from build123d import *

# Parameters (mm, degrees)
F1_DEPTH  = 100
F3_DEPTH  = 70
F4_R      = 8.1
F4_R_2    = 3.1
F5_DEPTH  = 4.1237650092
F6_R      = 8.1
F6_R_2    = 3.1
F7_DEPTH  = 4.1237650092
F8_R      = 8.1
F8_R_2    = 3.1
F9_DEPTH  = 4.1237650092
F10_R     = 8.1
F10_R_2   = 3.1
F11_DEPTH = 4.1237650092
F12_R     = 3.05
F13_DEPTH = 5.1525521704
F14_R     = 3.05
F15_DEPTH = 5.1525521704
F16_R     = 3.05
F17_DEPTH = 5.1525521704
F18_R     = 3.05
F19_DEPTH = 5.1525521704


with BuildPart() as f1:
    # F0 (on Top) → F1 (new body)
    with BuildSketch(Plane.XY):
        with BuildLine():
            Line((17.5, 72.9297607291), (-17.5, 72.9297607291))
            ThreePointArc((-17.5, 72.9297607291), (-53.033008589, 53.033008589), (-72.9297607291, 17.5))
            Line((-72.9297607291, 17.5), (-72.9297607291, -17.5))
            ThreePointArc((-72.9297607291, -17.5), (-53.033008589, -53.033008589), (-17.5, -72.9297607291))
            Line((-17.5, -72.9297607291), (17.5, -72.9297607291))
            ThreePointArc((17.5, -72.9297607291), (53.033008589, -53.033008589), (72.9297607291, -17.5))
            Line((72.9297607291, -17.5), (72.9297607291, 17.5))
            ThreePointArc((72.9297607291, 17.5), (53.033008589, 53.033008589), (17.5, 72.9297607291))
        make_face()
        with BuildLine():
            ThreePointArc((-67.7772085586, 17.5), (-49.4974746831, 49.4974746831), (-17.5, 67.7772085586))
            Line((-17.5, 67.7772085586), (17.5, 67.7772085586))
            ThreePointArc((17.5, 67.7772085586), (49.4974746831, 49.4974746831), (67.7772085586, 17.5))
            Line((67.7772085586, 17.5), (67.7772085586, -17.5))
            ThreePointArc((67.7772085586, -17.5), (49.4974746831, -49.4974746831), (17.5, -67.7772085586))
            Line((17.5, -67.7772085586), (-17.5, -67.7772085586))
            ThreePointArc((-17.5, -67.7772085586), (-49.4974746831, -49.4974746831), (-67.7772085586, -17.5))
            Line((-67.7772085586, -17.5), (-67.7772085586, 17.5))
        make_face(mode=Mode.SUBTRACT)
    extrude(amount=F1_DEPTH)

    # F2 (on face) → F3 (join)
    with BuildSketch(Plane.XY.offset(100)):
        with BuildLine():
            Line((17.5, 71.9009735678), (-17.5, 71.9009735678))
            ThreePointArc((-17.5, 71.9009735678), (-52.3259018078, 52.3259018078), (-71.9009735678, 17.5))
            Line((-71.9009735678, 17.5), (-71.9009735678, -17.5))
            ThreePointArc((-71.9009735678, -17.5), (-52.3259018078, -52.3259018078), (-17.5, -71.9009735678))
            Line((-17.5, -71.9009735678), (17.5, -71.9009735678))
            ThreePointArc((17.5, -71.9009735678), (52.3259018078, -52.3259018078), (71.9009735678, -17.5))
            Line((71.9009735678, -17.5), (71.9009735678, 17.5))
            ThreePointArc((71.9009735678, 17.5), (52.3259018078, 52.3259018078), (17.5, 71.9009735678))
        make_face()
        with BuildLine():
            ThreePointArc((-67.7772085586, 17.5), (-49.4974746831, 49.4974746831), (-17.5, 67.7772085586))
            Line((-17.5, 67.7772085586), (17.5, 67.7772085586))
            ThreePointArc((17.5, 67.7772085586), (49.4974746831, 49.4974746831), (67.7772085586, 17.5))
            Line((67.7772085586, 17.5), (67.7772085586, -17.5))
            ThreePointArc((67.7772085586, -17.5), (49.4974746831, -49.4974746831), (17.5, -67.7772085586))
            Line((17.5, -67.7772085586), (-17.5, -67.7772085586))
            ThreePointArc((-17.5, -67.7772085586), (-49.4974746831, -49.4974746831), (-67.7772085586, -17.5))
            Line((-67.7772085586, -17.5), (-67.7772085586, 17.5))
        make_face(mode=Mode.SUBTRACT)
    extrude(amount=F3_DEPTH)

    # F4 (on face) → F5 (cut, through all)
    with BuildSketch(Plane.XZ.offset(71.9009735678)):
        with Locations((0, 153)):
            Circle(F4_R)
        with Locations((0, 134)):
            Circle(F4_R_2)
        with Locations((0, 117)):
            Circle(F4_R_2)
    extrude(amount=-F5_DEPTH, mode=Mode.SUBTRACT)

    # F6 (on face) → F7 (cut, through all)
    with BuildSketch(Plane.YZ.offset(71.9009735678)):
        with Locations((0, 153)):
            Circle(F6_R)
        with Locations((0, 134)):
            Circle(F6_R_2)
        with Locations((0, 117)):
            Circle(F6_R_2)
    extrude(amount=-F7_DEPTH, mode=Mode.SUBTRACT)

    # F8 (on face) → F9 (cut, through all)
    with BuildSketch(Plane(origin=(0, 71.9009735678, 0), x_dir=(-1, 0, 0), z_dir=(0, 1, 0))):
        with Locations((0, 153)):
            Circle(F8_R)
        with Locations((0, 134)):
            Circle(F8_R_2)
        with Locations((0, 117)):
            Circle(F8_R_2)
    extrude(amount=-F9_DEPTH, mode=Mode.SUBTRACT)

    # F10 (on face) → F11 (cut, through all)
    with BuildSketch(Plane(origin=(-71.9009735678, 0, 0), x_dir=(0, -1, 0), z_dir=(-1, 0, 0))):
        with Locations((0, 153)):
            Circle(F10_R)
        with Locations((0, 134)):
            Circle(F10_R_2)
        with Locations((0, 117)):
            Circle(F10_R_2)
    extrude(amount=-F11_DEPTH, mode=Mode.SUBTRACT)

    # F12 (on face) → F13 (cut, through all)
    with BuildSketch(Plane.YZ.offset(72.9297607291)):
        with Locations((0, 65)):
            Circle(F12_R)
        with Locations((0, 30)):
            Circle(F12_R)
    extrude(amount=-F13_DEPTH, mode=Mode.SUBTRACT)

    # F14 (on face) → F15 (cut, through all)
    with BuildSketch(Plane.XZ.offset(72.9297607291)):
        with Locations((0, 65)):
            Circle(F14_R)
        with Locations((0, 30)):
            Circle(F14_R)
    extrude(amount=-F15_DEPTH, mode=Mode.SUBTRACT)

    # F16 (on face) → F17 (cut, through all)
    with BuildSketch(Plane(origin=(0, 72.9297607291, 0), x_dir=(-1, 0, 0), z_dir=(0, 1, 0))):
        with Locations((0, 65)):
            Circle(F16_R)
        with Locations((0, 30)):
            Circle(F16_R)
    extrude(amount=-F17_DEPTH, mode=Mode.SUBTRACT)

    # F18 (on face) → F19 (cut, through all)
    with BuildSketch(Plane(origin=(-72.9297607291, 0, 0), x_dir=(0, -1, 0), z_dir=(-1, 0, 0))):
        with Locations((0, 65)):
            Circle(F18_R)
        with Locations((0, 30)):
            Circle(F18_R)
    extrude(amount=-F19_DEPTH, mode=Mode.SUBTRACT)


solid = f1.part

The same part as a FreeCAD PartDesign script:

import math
import FreeCAD as App
import Part
import Sketcher

doc = App.newDocument("Part")
body = doc.addObject("PartDesign::Body", "Body")

# Sketch on XY plane
sketch1 = body.newObject("Sketcher::SketchObject", "Sketch")
sketch1.AttachmentSupport = (doc.getObject("XY_Plane"), [""])
sketch1.MapMode = "FlatFace"
sketch1.addGeometry(Part.LineSegment(App.Vector(18, 73, 0), App.Vector(-18, 73, 0)), False)
sketch1.addGeometry(Part.ArcOfCircle(Part.Circle(App.Vector(0, 0, 0), App.Vector(0, 0, 1), 75), math.radians(103), math.radians(167)), False)
sketch1.addGeometry(Part.LineSegment(App.Vector(-73, 18, 0), App.Vector(-73, -18, 0)), False)
sketch1.addGeometry(Part.ArcOfCircle(Part.Circle(App.Vector(0, 0, 0), App.Vector(0, 0, 1), 75), math.radians(-167), math.radians(-103)), False)
sketch1.addGeometry(Part.LineSegment(App.Vector(-18, -73, 0), App.Vector(18, -73, 0)), False)
sketch1.addGeometry(Part.ArcOfCircle(Part.Circle(App.Vector(0, 0, 0), App.Vector(0, 0, 1), 75), math.radians(-77), math.radians(-13)), False)
sketch1.addGeometry(Part.LineSegment(App.Vector(73, -18, 0), App.Vector(73, 18, 0)), False)
sketch1.addGeometry(Part.ArcOfCircle(Part.Circle(App.Vector(0, 0, 0), App.Vector(0, 0, 1), 75), math.radians(13), math.radians(77)), False)
sketch1.addGeometry(Part.LineSegment(App.Vector(-68, -18, 0), App.Vector(-68, 18, 0)), False)
sketch1.addGeometry(Part.ArcOfCircle(Part.Circle(App.Vector(0, 0, 0), App.Vector(0, 0, 1), 70), math.radians(104), math.radians(166)), False)
sketch1.addGeometry(Part.LineSegment(App.Vector(-18, 68, 0), App.Vector(18, 68, 0)), False)
sketch1.addGeometry(Part.ArcOfCircle(Part.Circle(App.Vector(0, 0, 0), App.Vector(0, 0, 1), 70), math.radians(14), math.radians(76)), False)
sketch1.addGeometry(Part.LineSegment(App.Vector(68, 18, 0), App.Vector(68, -18, 0)), False)
sketch1.addGeometry(Part.ArcOfCircle(Part.Circle(App.Vector(0, 0, 0), App.Vector(0, 0, 1), 70), math.radians(-76), math.radians(-14)), False)
sketch1.addGeometry(Part.LineSegment(App.Vector(18, -68, 0), App.Vector(-18, -68, 0)), False)
sketch1.addGeometry(Part.ArcOfCircle(Part.Circle(App.Vector(0, 0, 0), App.Vector(0, 0, 1), 70), math.radians(-166), math.radians(-104)), False)
sketch1.addConstraint(Sketcher.Constraint("Coincident", 0, 2, 1, 1))
sketch1.addConstraint(Sketcher.Constraint("Coincident", 1, 2, 2, 1))
sketch1.addConstraint(Sketcher.Constraint("Coincident", 2, 2, 3, 1))
sketch1.addConstraint(Sketcher.Constraint("Coincident", 3, 2, 4, 1))
sketch1.addConstraint(Sketcher.Constraint("Coincident", 4, 2, 5, 1))
sketch1.addConstraint(Sketcher.Constraint("Coincident", 5, 2, 6, 1))
sketch1.addConstraint(Sketcher.Constraint("Coincident", 6, 2, 7, 1))
sketch1.addConstraint(Sketcher.Constraint("Coincident", 7, 2, 0, 1))
sketch1.addConstraint(Sketcher.Constraint("Coincident", 8, 2, 9, 2))
sketch1.addConstraint(Sketcher.Constraint("Coincident", 9, 1, 10, 1))
sketch1.addConstraint(Sketcher.Constraint("Coincident", 10, 2, 11, 2))
sketch1.addConstraint(Sketcher.Constraint("Coincident", 11, 1, 12, 1))
sketch1.addConstraint(Sketcher.Constraint("Coincident", 12, 2, 13, 2))
sketch1.addConstraint(Sketcher.Constraint("Coincident", 13, 1, 14, 1))
sketch1.addConstraint(Sketcher.Constraint("Coincident", 14, 2, 15, 2))
sketch1.addConstraint(Sketcher.Constraint("Coincident", 15, 1, 8, 1))
sketch1.addConstraint(Sketcher.Constraint("Horizontal", 0))
sketch1.addConstraint(Sketcher.Constraint("Vertical", 2))
sketch1.addConstraint(Sketcher.Constraint("Horizontal", 4))
sketch1.addConstraint(Sketcher.Constraint("Vertical", 6))
sketch1.addConstraint(Sketcher.Constraint("Vertical", 8))
sketch1.addConstraint(Sketcher.Constraint("Horizontal", 10))
sketch1.addConstraint(Sketcher.Constraint("Vertical", 12))
sketch1.addConstraint(Sketcher.Constraint("Horizontal", 14))
sketch1.addConstraint(Sketcher.Constraint("Coincident", 1, 3, -1, 1))
sketch1.addConstraint(Sketcher.Constraint("Coincident", 3, 3, -1, 1))
sketch1.addConstraint(Sketcher.Constraint("Coincident", 5, 3, -1, 1))
sketch1.addConstraint(Sketcher.Constraint("Coincident", 7, 3, -1, 1))
sketch1.addConstraint(Sketcher.Constraint("Coincident", 9, 3, -1, 1))
sketch1.addConstraint(Sketcher.Constraint("Coincident", 11, 3, -1, 1))
sketch1.addConstraint(Sketcher.Constraint("Coincident", 13, 3, -1, 1))
sketch1.addConstraint(Sketcher.Constraint("Coincident", 15, 3, -1, 1))
sketch1.addConstraint(Sketcher.Constraint("Equal", 1, 3))
sketch1.addConstraint(Sketcher.Constraint("Equal", 3, 5))
sketch1.addConstraint(Sketcher.Constraint("Equal", 5, 7))
sketch1.addConstraint(Sketcher.Constraint("Equal", 9, 11))
sketch1.addConstraint(Sketcher.Constraint("Equal", 11, 13))
sketch1.addConstraint(Sketcher.Constraint("Equal", 13, 15))
sketch1.addConstraint(Sketcher.Constraint("Horizontal", 2, 2, 5, 2))
sketch1.addConstraint(Sketcher.Constraint("Horizontal", 6, 2, 8, 2))
sketch1.addConstraint(Sketcher.Constraint("Horizontal", 8, 2, 11, 1))
sketch1.addConstraint(Sketcher.Constraint("Vertical", 0, 2, 3, 2))
sketch1.addConstraint(Sketcher.Constraint("Vertical", 3, 2, 9, 1))
sketch1.addConstraint(Sketcher.Constraint("Vertical", 10, 2, 13, 1))
sketch1.addConstraint(Sketcher.Constraint("Equal", 14, 2))
sketch1.addConstraint(Sketcher.Constraint("Radius", 1, 75.0))
sketch1.addConstraint(Sketcher.Constraint("Radius", 9, 70.0))
sketch1.addConstraint(Sketcher.Constraint("DistanceX", 0, 2, 0, 1, 35.0))
pad1 = body.newObject("PartDesign::Pad", "Pad")
pad1.Profile = sketch1
pad1.Length = 100

# Sketch on XY plane
sketch2 = body.newObject("Sketcher::SketchObject", "Sketch001")
sketch2.AttachmentSupport = (doc.getObject("XY_Plane"), [""])
sketch2.MapMode = "FlatFace"
sketch2.AttachmentOffset = App.Placement(App.Vector(0, 0, 100), App.Rotation())
sketch2.addGeometry(Part.LineSegment(App.Vector(18, 72, 0), App.Vector(-18, 72, 0)), False)
sketch2.addGeometry(Part.ArcOfCircle(Part.Circle(App.Vector(0, 0, 0), App.Vector(0, 0, 1), 74), math.radians(104), math.radians(166)), False)
sketch2.addGeometry(Part.LineSegment(App.Vector(-72, 18, 0), App.Vector(-72, -18, 0)), False)
sketch2.addGeometry(Part.ArcOfCircle(Part.Circle(App.Vector(0, 0, 0), App.Vector(0, 0, 1), 74), math.radians(-166), math.radians(-104)), False)
sketch2.addGeometry(Part.LineSegment(App.Vector(-18, -72, 0), App.Vector(18, -72, 0)), False)
sketch2.addGeometry(Part.ArcOfCircle(Part.Circle(App.Vector(0, 0, 0), App.Vector(0, 0, 1), 74), math.radians(-76), math.radians(-14)), False)
sketch2.addGeometry(Part.LineSegment(App.Vector(72, -18, 0), App.Vector(72, 18, 0)), False)
sketch2.addGeometry(Part.ArcOfCircle(Part.Circle(App.Vector(0, 0, 0), App.Vector(0, 0, 1), 74), math.radians(14), math.radians(76)), False)
sketch2.addGeometry(Part.LineSegment(App.Vector(-68, -18, 0), App.Vector(-68, 18, 0)), False)
sketch2.addGeometry(Part.ArcOfCircle(Part.Circle(App.Vector(0, 0, 0), App.Vector(0, 0, 1), 70), math.radians(104), math.radians(166)), False)
sketch2.addGeometry(Part.LineSegment(App.Vector(-18, 68, 0), App.Vector(18, 68, 0)), False)
sketch2.addGeometry(Part.ArcOfCircle(Part.Circle(App.Vector(0, 0, 0), App.Vector(0, 0, 1), 70), math.radians(14), math.radians(76)), False)
sketch2.addGeometry(Part.LineSegment(App.Vector(68, 18, 0), App.Vector(68, -18, 0)), False)
sketch2.addGeometry(Part.ArcOfCircle(Part.Circle(App.Vector(0, 0, 0), App.Vector(0, 0, 1), 70), math.radians(-76), math.radians(-14)), False)
sketch2.addGeometry(Part.LineSegment(App.Vector(18, -68, 0), App.Vector(-18, -68, 0)), False)
sketch2.addGeometry(Part.ArcOfCircle(Part.Circle(App.Vector(0, 0, 0), App.Vector(0, 0, 1), 70), math.radians(-166), math.radians(-104)), False)
sketch2.addConstraint(Sketcher.Constraint("Coincident", 0, 2, 1, 1))
sketch2.addConstraint(Sketcher.Constraint("Coincident", 1, 2, 2, 1))
sketch2.addConstraint(Sketcher.Constraint("Coincident", 2, 2, 3, 1))
sketch2.addConstraint(Sketcher.Constraint("Coincident", 3, 2, 4, 1))
sketch2.addConstraint(Sketcher.Constraint("Coincident", 4, 2, 5, 1))
sketch2.addConstraint(Sketcher.Constraint("Coincident", 5, 2, 6, 1))
sketch2.addConstraint(Sketcher.Constraint("Coincident", 6, 2, 7, 1))
sketch2.addConstraint(Sketcher.Constraint("Coincident", 7, 2, 0, 1))
sketch2.addConstraint(Sketcher.Constraint("Coincident", 8, 2, 9, 2))
sketch2.addConstraint(Sketcher.Constraint("Coincident", 9, 1, 10, 1))
sketch2.addConstraint(Sketcher.Constraint("Coincident", 10, 2, 11, 2))
sketch2.addConstraint(Sketcher.Constraint("Coincident", 11, 1, 12, 1))
sketch2.addConstraint(Sketcher.Constraint("Coincident", 12, 2, 13, 2))
sketch2.addConstraint(Sketcher.Constraint("Coincident", 13, 1, 14, 1))
sketch2.addConstraint(Sketcher.Constraint("Coincident", 14, 2, 15, 2))
sketch2.addConstraint(Sketcher.Constraint("Coincident", 15, 1, 8, 1))
sketch2.addConstraint(Sketcher.Constraint("Horizontal", 0))
sketch2.addConstraint(Sketcher.Constraint("Vertical", 2))
sketch2.addConstraint(Sketcher.Constraint("Horizontal", 4))
sketch2.addConstraint(Sketcher.Constraint("Vertical", 6))
sketch2.addConstraint(Sketcher.Constraint("Vertical", 8))
sketch2.addConstraint(Sketcher.Constraint("Horizontal", 10))
sketch2.addConstraint(Sketcher.Constraint("Vertical", 12))
sketch2.addConstraint(Sketcher.Constraint("Horizontal", 14))
sketch2.addConstraint(Sketcher.Constraint("Coincident", 1, 3, -1, 1))
sketch2.addConstraint(Sketcher.Constraint("Coincident", 3, 3, -1, 1))
sketch2.addConstraint(Sketcher.Constraint("Coincident", 5, 3, -1, 1))
sketch2.addConstraint(Sketcher.Constraint("Coincident", 7, 3, -1, 1))
sketch2.addConstraint(Sketcher.Constraint("Coincident", 9, 3, -1, 1))
sketch2.addConstraint(Sketcher.Constraint("Coincident", 11, 3, -1, 1))
sketch2.addConstraint(Sketcher.Constraint("Coincident", 13, 3, -1, 1))
sketch2.addConstraint(Sketcher.Constraint("Coincident", 15, 3, -1, 1))
sketch2.addConstraint(Sketcher.Constraint("Equal", 1, 3))
sketch2.addConstraint(Sketcher.Constraint("Equal", 3, 5))
sketch2.addConstraint(Sketcher.Constraint("Equal", 5, 7))
sketch2.addConstraint(Sketcher.Constraint("Equal", 9, 11))
sketch2.addConstraint(Sketcher.Constraint("Equal", 11, 13))
sketch2.addConstraint(Sketcher.Constraint("Equal", 13, 15))
sketch2.addConstraint(Sketcher.Constraint("Horizontal", 2, 2, 5, 2))
sketch2.addConstraint(Sketcher.Constraint("Horizontal", 6, 2, 8, 2))
sketch2.addConstraint(Sketcher.Constraint("Horizontal", 8, 2, 11, 1))
sketch2.addConstraint(Sketcher.Constraint("Vertical", 0, 2, 3, 2))
sketch2.addConstraint(Sketcher.Constraint("Vertical", 3, 2, 9, 1))
sketch2.addConstraint(Sketcher.Constraint("Vertical", 10, 2, 13, 1))
sketch2.addConstraint(Sketcher.Constraint("Equal", 14, 2))
sketch2.addConstraint(Sketcher.Constraint("Radius", 1, 74.0))
sketch2.addConstraint(Sketcher.Constraint("Radius", 9, 70.0))
sketch2.addConstraint(Sketcher.Constraint("DistanceX", 0, 2, 0, 1, 35.0))
pad2 = body.newObject("PartDesign::Pad", "Pad001")
pad2.Profile = sketch2
pad2.Length = 70

# Sketch on XZ plane
sketch3 = body.newObject("Sketcher::SketchObject", "Sketch002")
sketch3.AttachmentSupport = (doc.getObject("XZ_Plane"), [""])
sketch3.MapMode = "FlatFace"
sketch3.AttachmentOffset = App.Placement(App.Vector(0, 0, 71.900974), App.Rotation())
sketch3.addGeometry(Part.Circle(App.Vector(0, 153, 0), App.Vector(0, 0, 1), 8.1), False)
sketch3.addGeometry(Part.Circle(App.Vector(0, 134, 0), App.Vector(0, 0, 1), 3.1), False)
sketch3.addGeometry(Part.Circle(App.Vector(0, 117, 0), App.Vector(0, 0, 1), 3.1), False)
sketch3.addConstraint(Sketcher.Constraint("Equal", 1, 2))
sketch3.addConstraint(Sketcher.Constraint("PointOnObject", 0, 3, -2))
sketch3.addConstraint(Sketcher.Constraint("PointOnObject", 1, 3, -2))
sketch3.addConstraint(Sketcher.Constraint("PointOnObject", 2, 3, -2))
sketch3.addConstraint(Sketcher.Constraint("Diameter", 0, 16.2))
sketch3.addConstraint(Sketcher.Constraint("Diameter", 1, 6.2))
sketch3.addConstraint(Sketcher.Constraint("DistanceY", -1, 1, 0, 3, 153.0))
sketch3.addConstraint(Sketcher.Constraint("DistanceY", -1, 1, 1, 3, 134.0))
sketch3.addConstraint(Sketcher.Constraint("DistanceY", -1, 1, 2, 3, 117.0))
pocket1 = body.newObject("PartDesign::Pocket", "Pocket")
pocket1.Profile = sketch3
pocket1.Length = 4.123765

# Sketch on YZ plane
sketch4 = body.newObject("Sketcher::SketchObject", "Sketch003")
sketch4.AttachmentSupport = (doc.getObject("YZ_Plane"), [""])
sketch4.MapMode = "FlatFace"
sketch4.AttachmentOffset = App.Placement(App.Vector(0, 0, 71.900974), App.Rotation())
sketch4.addGeometry(Part.Circle(App.Vector(0, 153, 0), App.Vector(0, 0, 1), 8.1), False)
sketch4.addGeometry(Part.Circle(App.Vector(0, 134, 0), App.Vector(0, 0, 1), 3.1), False)
sketch4.addGeometry(Part.Circle(App.Vector(0, 117, 0), App.Vector(0, 0, 1), 3.1), False)
sketch4.addConstraint(Sketcher.Constraint("Equal", 1, 2))
sketch4.addConstraint(Sketcher.Constraint("PointOnObject", 0, 3, -2))
sketch4.addConstraint(Sketcher.Constraint("PointOnObject", 1, 3, -2))
sketch4.addConstraint(Sketcher.Constraint("PointOnObject", 2, 3, -2))
sketch4.addConstraint(Sketcher.Constraint("Diameter", 0, 16.2))
sketch4.addConstraint(Sketcher.Constraint("Diameter", 1, 6.2))
sketch4.addConstraint(Sketcher.Constraint("DistanceY", -1, 1, 0, 3, 153.0))
sketch4.addConstraint(Sketcher.Constraint("DistanceY", -1, 1, 1, 3, 134.0))
sketch4.addConstraint(Sketcher.Constraint("DistanceY", -1, 1, 2, 3, 117.0))
pocket2 = body.newObject("PartDesign::Pocket", "Pocket001")
pocket2.Profile = sketch4
pocket2.Length = 4.123765

# Sketch on XZ plane
sketch5 = body.newObject("Sketcher::SketchObject", "Sketch004")
sketch5.AttachmentSupport = (doc.getObject("XZ_Plane"), [""])
sketch5.MapMode = "FlatFace"
sketch5.AttachmentOffset = App.Placement(App.Vector(0, 0, -71.900974), App.Rotation())
sketch5.addGeometry(Part.Circle(App.Vector(0, 153, 0), App.Vector(0, 0, 1), 8.1), False)
sketch5.addGeometry(Part.Circle(App.Vector(0, 134, 0), App.Vector(0, 0, 1), 3.1), False)
sketch5.addGeometry(Part.Circle(App.Vector(0, 117, 0), App.Vector(0, 0, 1), 3.1), False)
sketch5.addConstraint(Sketcher.Constraint("Equal", 1, 2))
sketch5.addConstraint(Sketcher.Constraint("PointOnObject", 0, 3, -2))
sketch5.addConstraint(Sketcher.Constraint("PointOnObject", 1, 3, -2))
sketch5.addConstraint(Sketcher.Constraint("PointOnObject", 2, 3, -2))
sketch5.addConstraint(Sketcher.Constraint("Diameter", 0, 16.2))
sketch5.addConstraint(Sketcher.Constraint("Diameter", 1, 6.2))
sketch5.addConstraint(Sketcher.Constraint("DistanceY", -1, 1, 0, 3, 153.0))
sketch5.addConstraint(Sketcher.Constraint("DistanceY", -1, 1, 1, 3, 134.0))
sketch5.addConstraint(Sketcher.Constraint("DistanceY", -1, 1, 2, 3, 117.0))
pocket3 = body.newObject("PartDesign::Pocket", "Pocket002")
pocket3.Profile = sketch5
pocket3.Type = "ThroughAll"
pocket3.Reversed = True

# Sketch on YZ plane
sketch6 = body.newObject("Sketcher::SketchObject", "Sketch005")
sketch6.AttachmentSupport = (doc.getObject("YZ_Plane"), [""])
sketch6.MapMode = "FlatFace"
sketch6.AttachmentOffset = App.Placement(App.Vector(0, 0, -71.900974), App.Rotation())
sketch6.addGeometry(Part.Circle(App.Vector(0, 153, 0), App.Vector(0, 0, 1), 8.1), False)
sketch6.addGeometry(Part.Circle(App.Vector(0, 134, 0), App.Vector(0, 0, 1), 3.1), False)
sketch6.addGeometry(Part.Circle(App.Vector(0, 117, 0), App.Vector(0, 0, 1), 3.1), False)
sketch6.addConstraint(Sketcher.Constraint("Equal", 1, 2))
sketch6.addConstraint(Sketcher.Constraint("PointOnObject", 0, 3, -2))
sketch6.addConstraint(Sketcher.Constraint("PointOnObject", 1, 3, -2))
sketch6.addConstraint(Sketcher.Constraint("PointOnObject", 2, 3, -2))
sketch6.addConstraint(Sketcher.Constraint("Diameter", 0, 16.2))
sketch6.addConstraint(Sketcher.Constraint("Diameter", 1, 6.2))
sketch6.addConstraint(Sketcher.Constraint("DistanceY", -1, 1, 0, 3, 153.0))
sketch6.addConstraint(Sketcher.Constraint("DistanceY", -1, 1, 1, 3, 134.0))
sketch6.addConstraint(Sketcher.Constraint("DistanceY", -1, 1, 2, 3, 117.0))
pocket4 = body.newObject("PartDesign::Pocket", "Pocket003")
pocket4.Profile = sketch6
pocket4.Type = "ThroughAll"
pocket4.Reversed = True

# Sketch on YZ plane
sketch7 = body.newObject("Sketcher::SketchObject", "Sketch006")
sketch7.AttachmentSupport = (doc.getObject("YZ_Plane"), [""])
sketch7.MapMode = "FlatFace"
sketch7.AttachmentOffset = App.Placement(App.Vector(0, 0, 72.929761), App.Rotation())
sketch7.addGeometry(Part.Circle(App.Vector(0, 65, 0), App.Vector(0, 0, 1), 3), False)
sketch7.addGeometry(Part.Circle(App.Vector(0, 30, 0), App.Vector(0, 0, 1), 3), False)
sketch7.addConstraint(Sketcher.Constraint("Equal", 0, 1))
sketch7.addConstraint(Sketcher.Constraint("PointOnObject", 0, 3, -2))
sketch7.addConstraint(Sketcher.Constraint("PointOnObject", 1, 3, -2))
sketch7.addConstraint(Sketcher.Constraint("Diameter", 0, 6.1))
sketch7.addConstraint(Sketcher.Constraint("DistanceY", -1, 1, 0, 3, 65.0))
sketch7.addConstraint(Sketcher.Constraint("DistanceY", -1, 1, 1, 3, 30.0))
pocket5 = body.newObject("PartDesign::Pocket", "Pocket004")
pocket5.Profile = sketch7
pocket5.Length = 5.152552

# Sketch on XZ plane
sketch8 = body.newObject("Sketcher::SketchObject", "Sketch007")
sketch8.AttachmentSupport = (doc.getObject("XZ_Plane"), [""])
sketch8.MapMode = "FlatFace"
sketch8.AttachmentOffset = App.Placement(App.Vector(0, 0, 72.929761), App.Rotation())
sketch8.addGeometry(Part.Circle(App.Vector(0, 65, 0), App.Vector(0, 0, 1), 3), False)
sketch8.addGeometry(Part.Circle(App.Vector(0, 30, 0), App.Vector(0, 0, 1), 3), False)
sketch8.addConstraint(Sketcher.Constraint("Equal", 0, 1))
sketch8.addConstraint(Sketcher.Constraint("PointOnObject", 0, 3, -2))
sketch8.addConstraint(Sketcher.Constraint("PointOnObject", 1, 3, -2))
sketch8.addConstraint(Sketcher.Constraint("Diameter", 0, 6.1))
sketch8.addConstraint(Sketcher.Constraint("DistanceY", -1, 1, 0, 3, 65.0))
sketch8.addConstraint(Sketcher.Constraint("DistanceY", -1, 1, 1, 3, 30.0))
pocket6 = body.newObject("PartDesign::Pocket", "Pocket005")
pocket6.Profile = sketch8
pocket6.Length = 5.152552

# Sketch on XZ plane
sketch9 = body.newObject("Sketcher::SketchObject", "Sketch008")
sketch9.AttachmentSupport = (doc.getObject("XZ_Plane"), [""])
sketch9.MapMode = "FlatFace"
sketch9.AttachmentOffset = App.Placement(App.Vector(0, 0, -72.929761), App.Rotation())
sketch9.addGeometry(Part.Circle(App.Vector(0, 65, 0), App.Vector(0, 0, 1), 3), False)
sketch9.addGeometry(Part.Circle(App.Vector(0, 30, 0), App.Vector(0, 0, 1), 3), False)
sketch9.addConstraint(Sketcher.Constraint("Equal", 0, 1))
sketch9.addConstraint(Sketcher.Constraint("PointOnObject", 0, 3, -2))
sketch9.addConstraint(Sketcher.Constraint("PointOnObject", 1, 3, -2))
sketch9.addConstraint(Sketcher.Constraint("Diameter", 0, 6.1))
sketch9.addConstraint(Sketcher.Constraint("DistanceY", -1, 1, 0, 3, 65.0))
sketch9.addConstraint(Sketcher.Constraint("DistanceY", -1, 1, 1, 3, 30.0))
pocket7 = body.newObject("PartDesign::Pocket", "Pocket006")
pocket7.Profile = sketch9
pocket7.Type = "ThroughAll"
pocket7.Reversed = True

# Sketch on YZ plane
sketch10 = body.newObject("Sketcher::SketchObject", "Sketch009")
sketch10.AttachmentSupport = (doc.getObject("YZ_Plane"), [""])
sketch10.MapMode = "FlatFace"
sketch10.AttachmentOffset = App.Placement(App.Vector(0, 0, -72.929761), App.Rotation())
sketch10.addGeometry(Part.Circle(App.Vector(0, 65, 0), App.Vector(0, 0, 1), 3), False)
sketch10.addGeometry(Part.Circle(App.Vector(0, 30, 0), App.Vector(0, 0, 1), 3), False)
sketch10.addConstraint(Sketcher.Constraint("Equal", 0, 1))
sketch10.addConstraint(Sketcher.Constraint("PointOnObject", 0, 3, -2))
sketch10.addConstraint(Sketcher.Constraint("PointOnObject", 1, 3, -2))
sketch10.addConstraint(Sketcher.Constraint("Diameter", 0, 6.1))
sketch10.addConstraint(Sketcher.Constraint("DistanceY", -1, 1, 0, 3, 65.0))
sketch10.addConstraint(Sketcher.Constraint("DistanceY", -1, 1, 1, 3, 30.0))
pocket8 = body.newObject("PartDesign::Pocket", "Pocket007")
pocket8.Profile = sketch10
pocket8.Type = "ThroughAll"
pocket8.Reversed = True

doc.recompute()
